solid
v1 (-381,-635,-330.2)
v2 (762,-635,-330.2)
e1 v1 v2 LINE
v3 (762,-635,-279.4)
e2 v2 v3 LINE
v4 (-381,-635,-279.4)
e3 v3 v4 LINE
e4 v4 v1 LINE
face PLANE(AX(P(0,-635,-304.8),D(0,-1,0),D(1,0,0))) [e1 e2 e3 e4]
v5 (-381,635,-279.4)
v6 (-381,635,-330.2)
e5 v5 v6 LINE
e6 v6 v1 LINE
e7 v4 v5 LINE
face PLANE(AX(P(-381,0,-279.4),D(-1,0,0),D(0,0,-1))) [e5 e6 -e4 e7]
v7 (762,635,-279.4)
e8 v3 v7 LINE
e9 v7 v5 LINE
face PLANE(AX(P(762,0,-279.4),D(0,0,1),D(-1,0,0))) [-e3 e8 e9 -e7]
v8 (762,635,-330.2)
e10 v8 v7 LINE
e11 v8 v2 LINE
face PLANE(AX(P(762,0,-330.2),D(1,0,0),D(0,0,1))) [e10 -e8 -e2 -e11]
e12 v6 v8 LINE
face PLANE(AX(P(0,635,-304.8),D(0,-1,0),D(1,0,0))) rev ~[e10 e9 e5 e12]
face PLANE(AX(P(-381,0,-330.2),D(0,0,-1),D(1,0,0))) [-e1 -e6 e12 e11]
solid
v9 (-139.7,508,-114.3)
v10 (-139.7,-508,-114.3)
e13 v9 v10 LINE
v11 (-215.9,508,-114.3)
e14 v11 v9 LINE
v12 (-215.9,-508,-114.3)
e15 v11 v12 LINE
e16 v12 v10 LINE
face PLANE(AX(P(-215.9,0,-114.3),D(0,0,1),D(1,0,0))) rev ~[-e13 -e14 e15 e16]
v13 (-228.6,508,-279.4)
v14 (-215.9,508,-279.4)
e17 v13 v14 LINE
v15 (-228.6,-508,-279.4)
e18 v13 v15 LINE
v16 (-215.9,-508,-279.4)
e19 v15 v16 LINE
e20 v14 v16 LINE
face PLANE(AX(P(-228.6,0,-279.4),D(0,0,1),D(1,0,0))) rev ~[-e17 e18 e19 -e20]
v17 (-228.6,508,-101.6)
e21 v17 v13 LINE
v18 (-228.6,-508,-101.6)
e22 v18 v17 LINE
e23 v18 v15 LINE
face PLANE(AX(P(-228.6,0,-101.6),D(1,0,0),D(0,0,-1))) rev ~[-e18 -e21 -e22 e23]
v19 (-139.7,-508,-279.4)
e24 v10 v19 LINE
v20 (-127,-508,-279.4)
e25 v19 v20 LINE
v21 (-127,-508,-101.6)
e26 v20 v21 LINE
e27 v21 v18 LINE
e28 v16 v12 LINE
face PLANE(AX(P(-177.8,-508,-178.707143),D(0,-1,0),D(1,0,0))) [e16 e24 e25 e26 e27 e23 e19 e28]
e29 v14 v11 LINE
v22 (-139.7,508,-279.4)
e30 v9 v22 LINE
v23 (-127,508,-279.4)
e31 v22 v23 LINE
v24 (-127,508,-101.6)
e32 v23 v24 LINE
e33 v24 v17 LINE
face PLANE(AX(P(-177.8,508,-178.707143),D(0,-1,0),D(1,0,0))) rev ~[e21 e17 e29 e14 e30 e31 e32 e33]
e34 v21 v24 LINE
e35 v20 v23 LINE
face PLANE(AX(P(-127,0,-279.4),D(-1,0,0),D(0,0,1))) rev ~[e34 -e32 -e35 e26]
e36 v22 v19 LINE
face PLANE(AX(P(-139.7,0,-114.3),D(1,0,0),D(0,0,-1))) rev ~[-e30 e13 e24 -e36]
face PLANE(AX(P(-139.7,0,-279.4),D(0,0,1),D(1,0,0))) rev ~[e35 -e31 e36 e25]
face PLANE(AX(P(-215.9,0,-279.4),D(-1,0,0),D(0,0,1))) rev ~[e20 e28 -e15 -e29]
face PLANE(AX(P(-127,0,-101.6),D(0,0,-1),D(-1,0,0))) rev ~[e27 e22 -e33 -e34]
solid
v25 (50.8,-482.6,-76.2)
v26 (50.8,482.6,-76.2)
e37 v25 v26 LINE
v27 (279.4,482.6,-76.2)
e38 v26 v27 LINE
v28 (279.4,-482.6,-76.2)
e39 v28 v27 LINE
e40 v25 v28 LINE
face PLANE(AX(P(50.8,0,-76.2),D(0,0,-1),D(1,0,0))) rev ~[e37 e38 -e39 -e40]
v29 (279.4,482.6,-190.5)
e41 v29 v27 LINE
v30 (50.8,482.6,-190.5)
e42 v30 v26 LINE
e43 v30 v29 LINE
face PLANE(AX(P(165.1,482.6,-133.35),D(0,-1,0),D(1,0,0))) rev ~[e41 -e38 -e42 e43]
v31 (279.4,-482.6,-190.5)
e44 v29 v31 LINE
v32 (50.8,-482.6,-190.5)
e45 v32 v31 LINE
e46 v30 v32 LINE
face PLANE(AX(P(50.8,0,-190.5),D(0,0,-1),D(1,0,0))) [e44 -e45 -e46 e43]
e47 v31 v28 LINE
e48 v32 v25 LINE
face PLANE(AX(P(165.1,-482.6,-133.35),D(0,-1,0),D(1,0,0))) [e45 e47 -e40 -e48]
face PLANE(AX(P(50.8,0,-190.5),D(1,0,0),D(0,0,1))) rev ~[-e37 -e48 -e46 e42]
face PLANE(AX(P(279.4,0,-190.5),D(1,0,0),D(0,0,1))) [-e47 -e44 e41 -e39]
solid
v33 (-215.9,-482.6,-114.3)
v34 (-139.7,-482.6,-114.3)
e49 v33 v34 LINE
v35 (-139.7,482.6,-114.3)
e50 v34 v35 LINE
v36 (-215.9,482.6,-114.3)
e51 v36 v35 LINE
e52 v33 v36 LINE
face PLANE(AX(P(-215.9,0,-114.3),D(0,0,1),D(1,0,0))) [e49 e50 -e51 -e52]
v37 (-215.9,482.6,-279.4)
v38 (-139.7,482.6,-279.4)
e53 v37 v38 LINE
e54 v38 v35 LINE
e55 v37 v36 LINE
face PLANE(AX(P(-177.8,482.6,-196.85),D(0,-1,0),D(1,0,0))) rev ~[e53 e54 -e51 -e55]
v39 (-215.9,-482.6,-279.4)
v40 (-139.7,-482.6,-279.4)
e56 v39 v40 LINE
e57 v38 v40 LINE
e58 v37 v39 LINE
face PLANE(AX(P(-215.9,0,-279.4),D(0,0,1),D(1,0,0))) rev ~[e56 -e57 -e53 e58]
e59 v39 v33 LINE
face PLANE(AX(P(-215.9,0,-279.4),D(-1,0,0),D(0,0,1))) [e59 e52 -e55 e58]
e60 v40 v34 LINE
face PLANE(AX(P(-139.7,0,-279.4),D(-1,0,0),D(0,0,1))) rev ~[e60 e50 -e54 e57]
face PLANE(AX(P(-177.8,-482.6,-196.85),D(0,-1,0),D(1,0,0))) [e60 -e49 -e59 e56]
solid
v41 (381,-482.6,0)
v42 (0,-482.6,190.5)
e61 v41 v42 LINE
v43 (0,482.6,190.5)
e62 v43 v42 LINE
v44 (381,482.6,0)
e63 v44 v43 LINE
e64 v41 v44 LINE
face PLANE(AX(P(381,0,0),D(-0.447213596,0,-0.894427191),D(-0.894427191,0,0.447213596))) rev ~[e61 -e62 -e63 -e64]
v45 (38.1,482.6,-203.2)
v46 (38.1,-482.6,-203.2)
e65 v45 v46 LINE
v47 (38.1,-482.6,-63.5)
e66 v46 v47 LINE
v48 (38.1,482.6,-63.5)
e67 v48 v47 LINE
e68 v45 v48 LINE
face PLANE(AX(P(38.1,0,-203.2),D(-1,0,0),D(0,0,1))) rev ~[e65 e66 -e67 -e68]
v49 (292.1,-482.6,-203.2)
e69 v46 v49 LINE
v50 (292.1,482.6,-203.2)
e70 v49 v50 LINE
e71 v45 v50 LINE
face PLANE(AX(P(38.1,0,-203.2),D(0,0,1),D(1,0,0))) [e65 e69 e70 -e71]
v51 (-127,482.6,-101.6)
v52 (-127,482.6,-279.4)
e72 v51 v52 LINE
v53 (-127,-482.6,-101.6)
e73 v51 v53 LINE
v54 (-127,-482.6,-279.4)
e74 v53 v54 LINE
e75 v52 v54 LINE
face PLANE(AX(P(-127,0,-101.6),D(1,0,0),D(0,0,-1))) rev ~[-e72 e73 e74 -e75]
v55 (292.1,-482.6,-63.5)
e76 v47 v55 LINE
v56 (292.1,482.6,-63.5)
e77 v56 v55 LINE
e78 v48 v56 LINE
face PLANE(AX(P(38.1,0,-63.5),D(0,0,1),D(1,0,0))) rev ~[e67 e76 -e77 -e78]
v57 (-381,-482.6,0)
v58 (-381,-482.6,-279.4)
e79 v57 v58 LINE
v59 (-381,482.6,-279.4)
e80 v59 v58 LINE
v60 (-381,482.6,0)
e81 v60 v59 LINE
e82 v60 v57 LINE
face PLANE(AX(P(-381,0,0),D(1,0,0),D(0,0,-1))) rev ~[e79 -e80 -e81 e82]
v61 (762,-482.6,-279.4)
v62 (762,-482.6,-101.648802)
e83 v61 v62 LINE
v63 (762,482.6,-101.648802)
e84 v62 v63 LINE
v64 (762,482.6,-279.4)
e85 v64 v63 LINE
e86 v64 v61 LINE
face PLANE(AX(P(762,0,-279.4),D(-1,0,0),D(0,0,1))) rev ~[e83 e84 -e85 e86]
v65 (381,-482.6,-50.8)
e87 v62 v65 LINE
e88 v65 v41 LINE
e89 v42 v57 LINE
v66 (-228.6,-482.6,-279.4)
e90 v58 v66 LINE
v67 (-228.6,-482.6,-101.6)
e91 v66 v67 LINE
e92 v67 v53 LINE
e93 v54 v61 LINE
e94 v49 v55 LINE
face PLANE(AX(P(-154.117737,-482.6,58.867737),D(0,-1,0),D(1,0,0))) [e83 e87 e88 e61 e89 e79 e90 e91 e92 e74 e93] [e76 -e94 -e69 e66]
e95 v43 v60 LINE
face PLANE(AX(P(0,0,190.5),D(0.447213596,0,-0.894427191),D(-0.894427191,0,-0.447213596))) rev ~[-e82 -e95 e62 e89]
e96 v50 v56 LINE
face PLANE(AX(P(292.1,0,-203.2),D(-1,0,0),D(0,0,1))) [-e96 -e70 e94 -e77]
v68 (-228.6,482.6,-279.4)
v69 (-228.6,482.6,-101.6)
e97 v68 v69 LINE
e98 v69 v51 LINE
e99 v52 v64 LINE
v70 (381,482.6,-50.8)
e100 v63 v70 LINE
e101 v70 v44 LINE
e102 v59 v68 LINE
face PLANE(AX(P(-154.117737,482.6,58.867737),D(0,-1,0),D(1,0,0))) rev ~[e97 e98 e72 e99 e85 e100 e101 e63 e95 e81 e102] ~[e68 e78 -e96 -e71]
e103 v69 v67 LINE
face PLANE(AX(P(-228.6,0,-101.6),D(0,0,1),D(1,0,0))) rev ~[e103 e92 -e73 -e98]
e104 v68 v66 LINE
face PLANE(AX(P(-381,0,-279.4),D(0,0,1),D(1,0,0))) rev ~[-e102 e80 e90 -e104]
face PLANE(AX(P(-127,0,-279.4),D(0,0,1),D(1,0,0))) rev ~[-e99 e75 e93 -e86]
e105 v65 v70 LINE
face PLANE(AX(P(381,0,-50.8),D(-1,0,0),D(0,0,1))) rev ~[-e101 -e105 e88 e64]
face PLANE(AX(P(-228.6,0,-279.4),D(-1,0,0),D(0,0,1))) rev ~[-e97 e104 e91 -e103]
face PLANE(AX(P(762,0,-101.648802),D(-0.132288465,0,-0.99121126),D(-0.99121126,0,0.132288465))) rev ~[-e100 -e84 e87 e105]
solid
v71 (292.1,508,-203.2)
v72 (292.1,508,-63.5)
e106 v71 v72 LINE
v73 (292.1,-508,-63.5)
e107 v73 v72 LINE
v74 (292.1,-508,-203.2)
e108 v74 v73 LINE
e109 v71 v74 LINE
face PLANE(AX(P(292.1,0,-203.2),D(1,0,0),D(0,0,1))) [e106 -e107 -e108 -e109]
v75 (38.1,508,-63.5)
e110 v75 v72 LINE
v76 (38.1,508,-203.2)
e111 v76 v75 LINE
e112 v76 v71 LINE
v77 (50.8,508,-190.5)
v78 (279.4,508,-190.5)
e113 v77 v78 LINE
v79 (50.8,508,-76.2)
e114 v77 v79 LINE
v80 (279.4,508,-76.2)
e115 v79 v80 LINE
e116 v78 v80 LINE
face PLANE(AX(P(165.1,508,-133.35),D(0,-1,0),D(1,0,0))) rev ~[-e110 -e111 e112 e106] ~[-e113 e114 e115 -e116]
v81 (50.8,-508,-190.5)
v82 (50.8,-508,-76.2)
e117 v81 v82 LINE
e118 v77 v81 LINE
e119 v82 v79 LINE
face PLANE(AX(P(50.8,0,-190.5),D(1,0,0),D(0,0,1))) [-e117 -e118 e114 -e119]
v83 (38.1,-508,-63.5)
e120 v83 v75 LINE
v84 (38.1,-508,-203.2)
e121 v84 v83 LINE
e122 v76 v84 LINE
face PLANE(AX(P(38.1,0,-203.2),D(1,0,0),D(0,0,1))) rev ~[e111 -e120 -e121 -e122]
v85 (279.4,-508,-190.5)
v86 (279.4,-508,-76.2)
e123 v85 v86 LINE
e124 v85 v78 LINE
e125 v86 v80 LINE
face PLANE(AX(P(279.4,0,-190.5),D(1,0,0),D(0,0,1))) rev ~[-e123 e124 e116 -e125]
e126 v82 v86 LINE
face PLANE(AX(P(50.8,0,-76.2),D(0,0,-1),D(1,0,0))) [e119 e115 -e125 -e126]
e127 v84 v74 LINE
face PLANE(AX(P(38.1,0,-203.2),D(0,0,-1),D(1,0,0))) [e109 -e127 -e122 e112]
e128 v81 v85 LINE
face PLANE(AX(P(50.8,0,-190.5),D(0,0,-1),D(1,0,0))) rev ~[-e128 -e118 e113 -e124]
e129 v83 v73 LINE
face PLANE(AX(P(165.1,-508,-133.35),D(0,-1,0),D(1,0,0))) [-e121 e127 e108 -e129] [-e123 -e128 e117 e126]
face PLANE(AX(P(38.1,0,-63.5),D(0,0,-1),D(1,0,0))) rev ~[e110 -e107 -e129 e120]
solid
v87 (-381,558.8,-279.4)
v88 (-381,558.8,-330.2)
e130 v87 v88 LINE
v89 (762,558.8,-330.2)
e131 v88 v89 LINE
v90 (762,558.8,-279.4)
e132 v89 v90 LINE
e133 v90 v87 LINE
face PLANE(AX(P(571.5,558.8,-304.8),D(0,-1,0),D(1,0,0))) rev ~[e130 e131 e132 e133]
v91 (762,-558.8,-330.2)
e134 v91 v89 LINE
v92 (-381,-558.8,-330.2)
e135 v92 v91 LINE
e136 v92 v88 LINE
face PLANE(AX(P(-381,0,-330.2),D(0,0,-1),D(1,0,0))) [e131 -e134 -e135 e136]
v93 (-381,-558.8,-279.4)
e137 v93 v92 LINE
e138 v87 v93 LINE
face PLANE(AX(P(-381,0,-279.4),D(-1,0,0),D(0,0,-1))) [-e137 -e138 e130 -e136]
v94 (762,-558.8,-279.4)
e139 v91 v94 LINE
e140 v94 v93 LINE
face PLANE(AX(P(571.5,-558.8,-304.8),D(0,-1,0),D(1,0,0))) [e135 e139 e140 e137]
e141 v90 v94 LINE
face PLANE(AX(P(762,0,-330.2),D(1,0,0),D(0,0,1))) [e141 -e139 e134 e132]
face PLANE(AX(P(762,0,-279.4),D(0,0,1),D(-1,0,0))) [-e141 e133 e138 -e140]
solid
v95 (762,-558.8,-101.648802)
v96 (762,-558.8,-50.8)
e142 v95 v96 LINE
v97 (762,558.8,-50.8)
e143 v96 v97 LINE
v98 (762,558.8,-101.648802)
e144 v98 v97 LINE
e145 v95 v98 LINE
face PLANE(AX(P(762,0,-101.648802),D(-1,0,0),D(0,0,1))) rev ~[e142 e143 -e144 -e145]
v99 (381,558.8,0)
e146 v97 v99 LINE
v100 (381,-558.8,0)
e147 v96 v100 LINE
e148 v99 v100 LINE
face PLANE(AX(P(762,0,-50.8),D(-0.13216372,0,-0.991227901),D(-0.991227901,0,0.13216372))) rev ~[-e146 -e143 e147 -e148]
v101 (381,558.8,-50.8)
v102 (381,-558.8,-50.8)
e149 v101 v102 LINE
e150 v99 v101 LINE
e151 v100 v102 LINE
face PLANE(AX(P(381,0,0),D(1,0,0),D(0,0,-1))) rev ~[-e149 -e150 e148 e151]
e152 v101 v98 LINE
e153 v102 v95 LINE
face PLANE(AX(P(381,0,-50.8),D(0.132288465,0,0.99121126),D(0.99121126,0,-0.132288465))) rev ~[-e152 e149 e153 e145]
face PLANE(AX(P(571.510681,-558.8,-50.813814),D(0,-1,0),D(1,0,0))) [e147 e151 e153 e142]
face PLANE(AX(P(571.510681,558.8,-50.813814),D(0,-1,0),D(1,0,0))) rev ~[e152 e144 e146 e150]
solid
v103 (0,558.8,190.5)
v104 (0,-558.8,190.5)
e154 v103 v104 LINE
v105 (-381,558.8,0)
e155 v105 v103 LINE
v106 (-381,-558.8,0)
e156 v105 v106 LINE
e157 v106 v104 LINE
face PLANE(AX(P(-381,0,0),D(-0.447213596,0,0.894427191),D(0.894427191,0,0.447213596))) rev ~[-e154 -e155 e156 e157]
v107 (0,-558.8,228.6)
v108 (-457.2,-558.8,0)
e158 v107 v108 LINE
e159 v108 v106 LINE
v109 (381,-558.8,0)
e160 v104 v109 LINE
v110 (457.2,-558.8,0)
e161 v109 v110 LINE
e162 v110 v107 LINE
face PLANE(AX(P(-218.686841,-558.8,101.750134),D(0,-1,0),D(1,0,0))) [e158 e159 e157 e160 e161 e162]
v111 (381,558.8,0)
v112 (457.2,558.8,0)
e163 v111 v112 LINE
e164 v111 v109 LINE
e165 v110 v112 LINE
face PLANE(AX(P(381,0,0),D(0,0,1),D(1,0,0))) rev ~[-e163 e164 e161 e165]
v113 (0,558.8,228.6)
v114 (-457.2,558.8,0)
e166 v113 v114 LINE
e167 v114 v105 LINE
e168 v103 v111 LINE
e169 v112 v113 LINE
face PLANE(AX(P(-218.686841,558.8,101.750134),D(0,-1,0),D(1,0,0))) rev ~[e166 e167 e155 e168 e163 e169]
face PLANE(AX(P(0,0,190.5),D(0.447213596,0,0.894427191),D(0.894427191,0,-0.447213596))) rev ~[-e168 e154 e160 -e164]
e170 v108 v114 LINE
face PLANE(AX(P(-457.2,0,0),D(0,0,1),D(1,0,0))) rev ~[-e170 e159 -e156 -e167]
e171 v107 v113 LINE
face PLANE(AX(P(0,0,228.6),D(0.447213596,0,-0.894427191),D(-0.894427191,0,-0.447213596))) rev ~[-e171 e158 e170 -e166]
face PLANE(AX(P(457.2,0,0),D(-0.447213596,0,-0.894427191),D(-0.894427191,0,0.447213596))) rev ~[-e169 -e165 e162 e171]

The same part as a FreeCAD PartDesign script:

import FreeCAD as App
import Part
import Sketcher
Q = App.Units.Quantity


def add_polygon(sketch, points):
    """Adds a closed chain of lines whose ends are joined by coincident constraints."""
    first, n = sketch.GeometryCount, len(points)
    for a, b in zip(points, points[1:] + points[:1]):
        sketch.addGeometry(Part.LineSegment(App.Vector(*a, 0), App.Vector(*b, 0)), False)
    for i in range(n):
        sketch.addConstraint(Sketcher.Constraint("Coincident", first + i, 2, first + (i + 1) % n, 1))

doc = App.newDocument("Part")
body = doc.addObject("PartDesign::Body", "Body")
body.AllowCompound = True

# Sketch on XZ plane
sketch1 = body.newObject("Sketcher::SketchObject", "Sketch")
sketch1.AttachmentSupport = (doc.getObject("XZ_Plane"), [""])
sketch1.MapMode = "FlatFace"
add_polygon(sketch1, [(381, 0), (0, 190), (-381, 0), (-381, -279), (-229, -279), (-229, -102), (-127, -102), (-127, -279), (762, -279), (762, -102), (381, -51)])  # lines 0-10
add_polygon(sketch1, [(292, -203), (38, -203), (38, -64), (292, -64)])  # lines 11-14
add_polygon(sketch1, [(-216, -114), (-216, -279), (-140, -279), (-140, -114)])  # lines 15-18
add_polygon(sketch1, [(51, -76), (51, -190), (279, -190), (279, -76)])  # lines 19-22
sketch1.addConstraint([
    Sketcher.Constraint("Vertical", 2),
    Sketcher.Constraint("Horizontal", 3),
    Sketcher.Constraint("Vertical", 4),
    Sketcher.Constraint("Horizontal", 5),
    Sketcher.Constraint("Vertical", 6),
    Sketcher.Constraint("Horizontal", 7),
    Sketcher.Constraint("Vertical", 8),
    Sketcher.Constraint("Vertical", 10),
    Sketcher.Constraint("Horizontal", 11),
    Sketcher.Constraint("Vertical", 12),
    Sketcher.Constraint("Horizontal", 13),
    Sketcher.Constraint("Vertical", 14),
    Sketcher.Constraint("Vertical", 15),
    Sketcher.Constraint("Horizontal", 16),
    Sketcher.Constraint("Vertical", 17),
    Sketcher.Constraint("Horizontal", 18),
    Sketcher.Constraint("Vertical", 19),
    Sketcher.Constraint("Horizontal", 20),
    Sketcher.Constraint("Vertical", 21),
    Sketcher.Constraint("Horizontal", 22),
    Sketcher.Constraint("Symmetric", 1, 2, 10, 2, -1, 1),
    Sketcher.Constraint("PointOnObject", 0, 2, -2),
    Sketcher.Constraint("PointOnObject", 1, 2, -1),
    Sketcher.Constraint("Horizontal", 3, 2, 6, 2),
    Sketcher.Constraint("Horizontal", 7, 2, 15, 2),
    Sketcher.Constraint("DistanceX", 3, 1, 3, 2, Q("6 in")),
    Sketcher.Constraint("DistanceX", 5, 1, 5, 2, Q("4 in")),
    Sketcher.Constraint("DistanceX", 7, 1, 7, 2, Q("35 in")),
    Sketcher.Constraint("DistanceX", 11, 2, 11, 1, Q("10 in")),
    Sketcher.Constraint("DistanceX", 16, 1, 16, 2, Q("3 in")),
    Sketcher.Constraint("DistanceX", 20, 1, 20, 2, Q("9 in")),
    Sketcher.Constraint("DistanceY", 2, 2, 2, 1, Q("11 in")),
    Sketcher.Constraint("DistanceY", 4, 1, 4, 2, Q("7 in")),
    Sketcher.Constraint("DistanceY", 10, 1, 10, 2, Q("2 in")),
    Sketcher.Constraint("DistanceY", 12, 1, 12, 2, Q("5.5 in")),
    Sketcher.Constraint("DistanceY", 15, 2, 15, 1, Q("6.5 in")),
    Sketcher.Constraint("DistanceY", 19, 2, 19, 1, Q("4.5 in")),
    Sketcher.Constraint("DistanceX", 1, 2, -1, 1, Q("15 in")),
    Sketcher.Constraint("DistanceY", 11, 2, -1, 1, Q("8 in")),
    Sketcher.Constraint("DistanceX", -1, 1, 19, 2, Q("2 in")),
    Sketcher.Constraint("DistanceY", 21, 2, -1, 1, Q("3 in")),
    Sketcher.Constraint("DistanceY", 12, 2, 0, 2, Q("10 in")),
    Sketcher.Constraint("DistanceX", 16, 2, 11, 2, Q("7 in")),
    Sketcher.Constraint("DistanceX", -1, 1, 11, 2, Q("1.5 in")),
    Sketcher.Constraint("Distance", 9, Q("15.133 in")),
])
pad1 = body.newObject("PartDesign::Pad", "Pad")
pad1.Profile = sketch1
pad1.Length = Q("38 in")
pad1.Midplane = True
body2 = doc.addObject("PartDesign::Body", "Body001")
body2.AllowCompound = True

# Sketch on XZ plane
sketch2 = body2.newObject("Sketcher::SketchObject", "Sketch001")
sketch2.AttachmentSupport = (doc.getObject("XZ_Plane001"), [""])
sketch2.MapMode = "FlatFace"
add_polygon(sketch2, [(-229, -102), (-229, -279), (-216, -279), (-216, -114), (-140, -114), (-140, -279), (-127, -279), (-127, -102)])  # lines 0-7
add_polygon(sketch2, [(38, -64), (38, -203), (292, -203), (292, -64)])  # lines 8-11
add_polygon(sketch2, [(279, -190), (51, -190), (51, -76), (279, -76)])  # lines 12-15
sketch2.addConstraint([
    Sketcher.Constraint("Vertical", 0),
    Sketcher.Constraint("Horizontal", 1),
    Sketcher.Constraint("Vertical", 2),
    Sketcher.Constraint("Horizontal", 3),
    Sketcher.Constraint("Vertical", 4),
    Sketcher.Constraint("Horizontal", 5),
    Sketcher.Constraint("Vertical", 6),
    Sketcher.Constraint("Horizontal", 7),
    Sketcher.Constraint("Vertical", 8),
    Sketcher.Constraint("Horizontal", 9),
    Sketcher.Constraint("Vertical", 10),
    Sketcher.Constraint("Horizontal", 11),
    Sketcher.Constraint("Horizontal", 12),
    Sketcher.Constraint("Vertical", 13),
    Sketcher.Constraint("Horizontal", 14),
    Sketcher.Constraint("Vertical", 15),
    Sketcher.Constraint("Horizontal", 1, 2, 4, 2),
    Sketcher.Constraint("Equal", 1, 5),
    Sketcher.Constraint("DistanceX", 3, 1, 3, 2, Q("3 in")),
    Sketcher.Constraint("DistanceX", 7, 2, 7, 1, Q("4 in")),
    Sketcher.Constraint("DistanceX", 9, 1, 9, 2, Q("10 in")),
    Sketcher.Constraint("DistanceX", 12, 2, 12, 1, Q("9 in")),
    Sketcher.Constraint("DistanceY", 0, 2, 0, 1, Q("7 in")),
    Sketcher.Constraint("DistanceY", 2, 1, 2, 2, Q("6.5 in")),
    Sketcher.Constraint("DistanceY", 8, 2, 8, 1, Q("5.5 in")),
    Sketcher.Constraint("DistanceY", 13, 1, 13, 2, Q("4.5 in")),
    Sketcher.Constraint("DistanceX", 0, 2, -1, 1, Q("9 in")),
    Sketcher.Constraint("DistanceY", 0, 2, -1, 1, Q("11 in")),
    Sketcher.Constraint("DistanceY", 8, 2, -1, 1, Q("8 in")),
    Sketcher.Constraint("DistanceX", -1, 1, 12, 2, Q("2 in")),
    Sketcher.Constraint("DistanceY", 13, 2, -1, 1, Q("3 in")),
    Sketcher.Constraint("DistanceX", 4, 2, 8, 2, Q("7 in")),
])
pad2 = body2.newObject("PartDesign::Pad", "Pad001")
pad2.Profile = sketch2
pad2.Length = Q("40 in")
pad2.Midplane = True
body3 = doc.addObject("PartDesign::Body", "Body002")
body3.AllowCompound = True

# Sketch on XZ plane
sketch3 = body3.newObject("Sketcher::SketchObject", "Sketch002")
sketch3.AttachmentSupport = (doc.getObject("XZ_Plane002"), [""])
sketch3.MapMode = "FlatFace"
add_polygon(sketch3, [(-457, 0), (-381, 0), (0, 190), (381, 0), (457, 0), (0, 229)])  # lines 0-5
add_polygon(sketch3, [(762, -51), (381, 0), (381, -51), (762, -102)])  # lines 6-9
add_polygon(sketch3, [(762, -330), (762, -279), (-381, -279), (-381, -330)])  # lines 10-13
sketch3.addConstraint([
    Sketcher.Constraint("Horizontal", 0),
    Sketcher.Constraint("Horizontal", 3),
    Sketcher.Constraint("Vertical", 7),
    Sketcher.Constraint("Vertical", 9),
    Sketcher.Constraint("Vertical", 10),
    Sketcher.Constraint("Horizontal", 11),
    Sketcher.Constraint("Vertical", 12),
    Sketcher.Constraint("Horizontal", 13),
    Sketcher.Constraint("Coincident", 6, 2, 2, 2),
    Sketcher.Constraint("Symmetric", 0, 2, 2, 2, -1, 1),
    Sketcher.Constraint("Symmetric", 3, 2, 5, 2, -2),
    Sketcher.Constraint("PointOnObject", 1, 2, -2),
    Sketcher.Constraint("PointOnObject", 4, 2, -2),
    Sketcher.Constraint("Parallel", 2, 4),
    Sketcher.Constraint("Horizontal", 7, 2, 9, 2),
    Sketcher.Constraint("Vertical", 9, 2, 10, 2),
    Sketcher.Constraint("Vertical", 0, 2, 11, 2),
    Sketcher.Constraint("Equal", 7, 10),
    Sketcher.Constraint("DistanceX", 0, 1, 0, 2, Q("3 in")),
    Sketcher.Constraint("DistanceX", 11, 2, 11, 1, Q("45 in")),
    Sketcher.Constraint("DistanceY", 7, 2, 7, 1, Q("2 in")),
    Sketcher.Constraint("DistanceX", 0, 2, -1, 1, Q("15 in")),
    Sketcher.Constraint("DistanceY", -1, 1, 4, 2, Q("9 in")),
    Sketcher.Constraint("DistanceY", 10, 2, -1, 1, Q("11 in")),
    Sketcher.Constraint("Distance", 8, Q("15.133 in")),
])
pad3 = body3.newObject("PartDesign::Pad", "Pad002")
pad3.Profile = sketch3
pad3.Length = Q("44 in")
pad3.Midplane = True
body4 = doc.addObject("PartDesign::Body", "Body003")

# Sketch on XZ plane
sketch4 = body4.newObject("Sketcher::SketchObject", "Sketch003")
sketch4.AttachmentSupport = (doc.getObject("XZ_Plane003"), [""])
sketch4.MapMode = "FlatFace"
add_polygon(sketch4, [(-381, -279), (-381, -330), (762, -330), (762, -279)])  # lines 0-3
sketch4.addConstraint([
    Sketcher.Constraint("Vertical", 0),
    Sketcher.Constraint("Horizontal", 1),
    Sketcher.Constraint("Vertical", 2),
    Sketcher.Constraint("Horizontal", 3),
    Sketcher.Constraint("DistanceX", 1, 1, 1, 2, Q("45 in")),
    Sketcher.Constraint("DistanceY", 0, 2, 0, 1, Q("2 in")),
    Sketcher.Constraint("DistanceX", 0, 2, -1, 1, Q("15 in")),
    Sketcher.Constraint("DistanceY", 0, 2, -1, 1, Q("13 in")),
])
pad4 = body4.newObject("PartDesign::Pad", "Pad003")
pad4.Profile = sketch4
pad4.Length = Q("50 in")
pad4.Midplane = True

doc.recompute()
